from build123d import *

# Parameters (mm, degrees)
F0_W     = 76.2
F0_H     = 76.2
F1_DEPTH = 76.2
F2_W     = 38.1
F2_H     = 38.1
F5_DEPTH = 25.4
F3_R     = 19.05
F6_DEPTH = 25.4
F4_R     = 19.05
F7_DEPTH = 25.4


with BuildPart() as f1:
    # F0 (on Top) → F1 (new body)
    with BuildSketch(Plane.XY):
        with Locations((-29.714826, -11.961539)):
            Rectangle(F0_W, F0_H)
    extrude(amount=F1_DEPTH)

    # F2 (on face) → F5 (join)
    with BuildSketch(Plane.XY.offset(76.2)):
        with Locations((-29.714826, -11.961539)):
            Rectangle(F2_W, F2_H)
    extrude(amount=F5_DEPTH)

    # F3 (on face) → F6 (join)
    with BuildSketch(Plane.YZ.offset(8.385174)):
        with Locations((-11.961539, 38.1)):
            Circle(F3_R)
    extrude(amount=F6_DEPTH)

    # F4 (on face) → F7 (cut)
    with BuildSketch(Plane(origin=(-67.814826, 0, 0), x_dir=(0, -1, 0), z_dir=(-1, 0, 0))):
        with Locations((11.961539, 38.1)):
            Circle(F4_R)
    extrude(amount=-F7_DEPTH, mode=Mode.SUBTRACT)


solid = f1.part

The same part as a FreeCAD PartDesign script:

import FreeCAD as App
import Part
import Sketcher
from FreeCAD import Vector
Q = App.Units.Quantity

doc = App.newDocument("Part")
params = doc.addObject("Spreadsheet::Sheet", "Params")
for row, (alias, value) in enumerate([
    ("sketch1_width", "3 in"),
    ("pad1_length", "3 in"),
    ("sketch2_width", "1.5 in"),
    ("pad2_length", "1 in"),
    ("sketch3_diameter", "1.5 in"),
    ("pad3_length", "1 in"),
    ("sketch4_diameter", "1.5 in"),
    ("pocket1_length", "1 in"),
], start=1):
    params.set(f"A{row}", alias)
    params.set(f"B{row}", "=" + value)
    params.setAlias(f"B{row}", alias)

body = doc.addObject("PartDesign::Body", "Body")

sketch1 = body.newObject("Sketcher::SketchObject", "Sketch")
sketch1.AttachmentSupport = (doc.getObject("XY_Plane"), [""])
sketch1.MapMode = "FlatFace"
sketch1.addGeometry(Part.LineSegment(Vector(-67.814826, 26.138461, 0), Vector(-67.814826, -50.061539, 0)), False)
sketch1.addGeometry(Part.LineSegment(Vector(-67.814826, -50.061539, 0), Vector(8.385174, -50.061539, 0)), False)
sketch1.addGeometry(Part.LineSegment(Vector(8.385174, -50.061539, 0), Vector(8.385174, 26.138461, 0)), False)
sketch1.addGeometry(Part.LineSegment(Vector(8.385174, 26.138461, 0), Vector(-67.814826, 26.138461, 0)), False)
sketch1.addConstraint(Sketcher.Constraint("Coincident", 0, 2, 1, 1))
sketch1.addConstraint(Sketcher.Constraint("Coincident", 1, 2, 2, 1))
sketch1.addConstraint(Sketcher.Constraint("Coincident", 2, 2, 3, 1))
sketch1.addConstraint(Sketcher.Constraint("Coincident", 3, 2, 0, 1))
sketch1.addConstraint(Sketcher.Constraint("Vertical", 0))
sketch1.addConstraint(Sketcher.Constraint("Horizontal", 1))
sketch1.addConstraint(Sketcher.Constraint("Vertical", 2))
sketch1.addConstraint(Sketcher.Constraint("Horizontal", 3))
sketch1.addConstraint(Sketcher.Constraint("Equal", 3, 0))
sketch1.addConstraint(Sketcher.Constraint("DistanceX", 1, 1, 1, 2, Q("3 in")))
sketch1.addConstraint(Sketcher.Constraint("DistanceY", 0, 2, -1, 1, 50.061539))
sketch1.addConstraint(Sketcher.Constraint("DistanceX", 0, 2, -1, 1, 67.814826))
sketch1.setExpression("Constraints[9]", "Params.sketch1_width")
pad1 = body.newObject("PartDesign::Pad", "Pad")
pad1.Profile = sketch1
pad1.setExpression("Length", "Params.pad1_length")

sketch2 = body.newObject("Sketcher::SketchObject", "Sketch001")
sketch2.AttachmentSupport = (doc.getObject("XY_Plane"), [""])
sketch2.MapMode = "FlatFace"
sketch2.AttachmentOffset = App.Placement(Vector(0, 0, 3 * 25.4), App.Rotation())
sketch2.addGeometry(Part.LineSegment(Vector(-48.764826, 7.088461, 0), Vector(-48.764826, -31.011539, 0)), False)
sketch2.addGeometry(Part.LineSegment(Vector(-48.764826, -31.011539, 0), Vector(-10.664826, -31.011539, 0)), False)
sketch2.addGeometry(Part.LineSegment(Vector(-10.664826, -31.011539, 0), Vector(-10.664826, 7.088461, 0)), False)
sketch2.addGeometry(Part.LineSegment(Vector(-10.664826, 7.088461, 0), Vector(-48.764826, 7.088461, 0)), False)
sketch2.addConstraint(Sketcher.Constraint("Coincident", 0, 2, 1, 1))
sketch2.addConstraint(Sketcher.Constraint("Coincident", 1, 2, 2, 1))
sketch2.addConstraint(Sketcher.Constraint("Coincident", 2, 2, 3, 1))
sketch2.addConstraint(Sketcher.Constraint("Coincident", 3, 2, 0, 1))
sketch2.addConstraint(Sketcher.Constraint("Vertical", 0))
sketch2.addConstraint(Sketcher.Constraint("Horizontal", 1))
sketch2.addConstraint(Sketcher.Constraint("Vertical", 2))
sketch2.addConstraint(Sketcher.Constraint("Horizontal", 3))
sketch2.addConstraint(Sketcher.Constraint("Equal", 3, 0))
sketch2.addConstraint(Sketcher.Constraint("DistanceX", 1, 1, 1, 2, Q("1.5 in")))
sketch2.addConstraint(Sketcher.Constraint("DistanceY", 0, 2, -1, 1, 31.011539))
sketch2.addConstraint(Sketcher.Constraint("DistanceX", 0, 2, -1, 1, 48.764826))
sketch2.setExpression("Constraints[9]", "Params.sketch2_width")
pad2 = body.newObject("PartDesign::Pad", "Pad001")
pad2.Profile = sketch2
pad2.setExpression("Length", "Params.pad2_length")

sketch3 = body.newObject("Sketcher::SketchObject", "Sketch002")
sketch3.AttachmentSupport = (doc.getObject("YZ_Plane"), [""])
sketch3.MapMode = "FlatFace"
sketch3.AttachmentOffset = App.Placement(Vector(0, 0, 8.385174), App.Rotation())
sketch3.addGeometry(Part.Circle(Vector(-11.961539, 38.1, 0), Vector(0, 0, 1), 19.05), False)
sketch3.addConstraint(Sketcher.Constraint("Diameter", 0, Q("1.5 in")))
sketch3.addConstraint(Sketcher.Constraint("DistanceY", -1, 1, 0, 3, Q("1.5 in")))
sketch3.addConstraint(Sketcher.Constraint("DistanceX", 0, 3, -1, 1, 11.961539))
sketch3.setExpression("Constraints[0]", "Params.sketch3_diameter")
pad3 = body.newObject("PartDesign::Pad", "Pad002")
pad3.Profile = sketch3
pad3.setExpression("Length", "Params.pad3_length")

sketch4 = body.newObject("Sketcher::SketchObject", "Sketch003")
sketch4.AttachmentSupport = (doc.getObject("YZ_Plane"), [""])
sketch4.MapMode = "FlatFace"
sketch4.AttachmentOffset = App.Placement(Vector(0, 0, -67.814826), App.Rotation())
sketch4.addGeometry(Part.Circle(Vector(-11.961539, 38.1, 0), Vector(0, 0, 1), 19.05), False)
sketch4.addConstraint(Sketcher.Constraint("Diameter", 0, Q("1.5 in")))
sketch4.addConstraint(Sketcher.Constraint("DistanceY", -1, 1, 0, 3, Q("1.5 in")))
sketch4.addConstraint(Sketcher.Constraint("DistanceX", 0, 3, -1, 1, 11.961539))
sketch4.setExpression("Constraints[0]", "Params.sketch4_diameter")
pocket1 = body.newObject("PartDesign::Pocket", "Pocket")
pocket1.Profile = sketch4
pocket1.setExpression("Length", "Params.pocket1_length")
pocket1.Reversed = True

doc.recompute()
